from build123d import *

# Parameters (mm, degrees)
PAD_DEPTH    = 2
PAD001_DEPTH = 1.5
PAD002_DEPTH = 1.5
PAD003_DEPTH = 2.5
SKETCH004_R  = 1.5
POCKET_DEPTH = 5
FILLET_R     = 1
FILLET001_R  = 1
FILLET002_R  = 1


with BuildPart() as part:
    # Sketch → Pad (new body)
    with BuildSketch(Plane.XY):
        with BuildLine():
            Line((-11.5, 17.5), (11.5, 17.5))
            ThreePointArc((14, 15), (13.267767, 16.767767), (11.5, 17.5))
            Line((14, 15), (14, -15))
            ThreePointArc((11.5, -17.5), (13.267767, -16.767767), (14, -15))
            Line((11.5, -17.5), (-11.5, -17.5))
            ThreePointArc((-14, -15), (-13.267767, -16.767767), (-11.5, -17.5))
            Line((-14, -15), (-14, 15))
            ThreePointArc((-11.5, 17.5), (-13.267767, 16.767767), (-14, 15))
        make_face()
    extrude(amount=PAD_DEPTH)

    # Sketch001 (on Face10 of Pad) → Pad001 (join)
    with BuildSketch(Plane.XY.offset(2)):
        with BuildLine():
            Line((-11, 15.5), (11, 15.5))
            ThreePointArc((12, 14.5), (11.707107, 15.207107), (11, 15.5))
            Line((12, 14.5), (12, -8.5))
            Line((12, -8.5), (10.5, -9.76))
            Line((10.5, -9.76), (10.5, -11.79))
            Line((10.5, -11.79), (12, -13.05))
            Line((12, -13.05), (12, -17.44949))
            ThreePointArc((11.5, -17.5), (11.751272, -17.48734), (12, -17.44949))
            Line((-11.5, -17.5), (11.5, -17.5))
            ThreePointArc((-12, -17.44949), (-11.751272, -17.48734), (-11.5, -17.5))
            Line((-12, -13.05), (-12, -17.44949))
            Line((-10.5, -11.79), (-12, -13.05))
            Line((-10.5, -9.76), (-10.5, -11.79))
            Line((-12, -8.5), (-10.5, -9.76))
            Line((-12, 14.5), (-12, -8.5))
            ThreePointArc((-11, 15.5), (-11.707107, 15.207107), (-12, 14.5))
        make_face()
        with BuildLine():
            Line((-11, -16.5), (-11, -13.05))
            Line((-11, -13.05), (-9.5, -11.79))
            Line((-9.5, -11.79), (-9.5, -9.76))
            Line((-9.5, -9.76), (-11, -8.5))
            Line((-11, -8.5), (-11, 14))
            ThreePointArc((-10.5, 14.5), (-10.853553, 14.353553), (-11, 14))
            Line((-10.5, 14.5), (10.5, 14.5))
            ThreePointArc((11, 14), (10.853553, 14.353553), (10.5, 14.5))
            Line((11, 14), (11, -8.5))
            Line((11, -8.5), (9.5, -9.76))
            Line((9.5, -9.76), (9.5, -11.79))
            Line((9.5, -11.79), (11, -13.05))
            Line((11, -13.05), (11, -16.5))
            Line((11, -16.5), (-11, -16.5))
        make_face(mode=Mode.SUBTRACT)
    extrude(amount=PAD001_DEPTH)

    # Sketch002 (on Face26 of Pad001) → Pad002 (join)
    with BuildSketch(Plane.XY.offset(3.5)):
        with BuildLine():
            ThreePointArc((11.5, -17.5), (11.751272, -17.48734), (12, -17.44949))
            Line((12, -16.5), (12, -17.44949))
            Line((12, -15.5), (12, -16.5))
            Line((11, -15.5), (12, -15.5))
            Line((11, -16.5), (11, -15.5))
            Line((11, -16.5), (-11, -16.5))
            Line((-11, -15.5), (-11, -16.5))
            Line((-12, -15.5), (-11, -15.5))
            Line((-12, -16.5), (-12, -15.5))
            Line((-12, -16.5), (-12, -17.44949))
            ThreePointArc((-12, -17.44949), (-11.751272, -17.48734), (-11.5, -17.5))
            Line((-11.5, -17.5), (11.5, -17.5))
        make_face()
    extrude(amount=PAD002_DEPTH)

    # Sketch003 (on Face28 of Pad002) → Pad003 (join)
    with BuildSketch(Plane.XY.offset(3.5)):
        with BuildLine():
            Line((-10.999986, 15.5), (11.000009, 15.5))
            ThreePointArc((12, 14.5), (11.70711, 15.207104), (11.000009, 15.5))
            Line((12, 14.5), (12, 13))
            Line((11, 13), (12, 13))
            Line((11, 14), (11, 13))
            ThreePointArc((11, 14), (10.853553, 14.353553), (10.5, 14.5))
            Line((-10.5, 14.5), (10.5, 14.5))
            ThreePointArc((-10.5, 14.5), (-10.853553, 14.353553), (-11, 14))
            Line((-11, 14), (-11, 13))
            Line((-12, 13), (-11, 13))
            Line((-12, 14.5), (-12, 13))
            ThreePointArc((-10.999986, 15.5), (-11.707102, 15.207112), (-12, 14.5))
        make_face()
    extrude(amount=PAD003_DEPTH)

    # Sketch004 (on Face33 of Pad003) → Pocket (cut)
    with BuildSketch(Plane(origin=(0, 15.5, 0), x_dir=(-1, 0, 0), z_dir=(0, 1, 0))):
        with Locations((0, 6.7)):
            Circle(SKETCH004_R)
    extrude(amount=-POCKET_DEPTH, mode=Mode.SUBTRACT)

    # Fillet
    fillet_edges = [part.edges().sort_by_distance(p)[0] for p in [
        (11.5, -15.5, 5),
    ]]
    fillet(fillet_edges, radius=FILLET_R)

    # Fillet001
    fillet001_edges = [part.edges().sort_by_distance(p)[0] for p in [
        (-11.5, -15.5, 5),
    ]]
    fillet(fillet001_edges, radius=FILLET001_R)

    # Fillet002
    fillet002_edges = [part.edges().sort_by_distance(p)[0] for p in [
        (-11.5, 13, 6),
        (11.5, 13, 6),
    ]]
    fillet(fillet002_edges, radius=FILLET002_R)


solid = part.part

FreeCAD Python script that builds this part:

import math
import FreeCAD as App
import Part
import Sketcher

V = App.Vector
Q = App.Units.Quantity


def edges_at(feature, points):
    """Names of the edges that pass closest to the given points."""
    edges = feature.Shape.Edges
    near = lambda p: min(range(len(edges)), key=lambda i: edges[i].distToShape(Part.Vertex(*p))[0])
    return sorted({f"Edge{near(p) + 1}" for p in points})

doc = App.newDocument("Part")
body = doc.addObject("PartDesign::Body", "Body")

sketch1 = body.newObject("Sketcher::SketchObject", "Sketch")
sketch1.AttachmentSupport = (doc.getObject("XY_Plane"), [""])
sketch1.MapMode = "FlatFace"
sketch1.addGeometry([
    Part.LineSegment(V(11.5, 17.5, 0), V(-11.5, 17.5, 0)),
    Part.ArcOfCircle(Part.Circle(V(-11.5, 15, 0), V(0, 0, 1), 2.5), math.radians(90), math.radians(180)),
    Part.LineSegment(V(-14, 15, 0), V(-14, -15, 0)),
    Part.ArcOfCircle(Part.Circle(V(-11.5, -15, 0), V(0, 0, 1), 2.5), math.radians(180), math.radians(270)),
    Part.LineSegment(V(-11.5, -17.5, 0), V(11.5, -17.5, 0)),
    Part.ArcOfCircle(Part.Circle(V(11.5, -15, 0), V(0, 0, 1), 2.5), math.radians(-90), math.radians(0)),
    Part.LineSegment(V(14, -15, 0), V(14, 15, 0)),
    Part.ArcOfCircle(Part.Circle(V(11.5, 15, 0), V(0, 0, 1), 2.5), math.radians(0), math.radians(90)),
], False)
sketch1.addConstraint([
    Sketcher.Constraint("Tangent", 0, 2, 1, 1),
    Sketcher.Constraint("Tangent", 1, 2, 2, 1),
    Sketcher.Constraint("Tangent", 2, 2, 3, 1),
    Sketcher.Constraint("Tangent", 3, 2, 4, 1),
    Sketcher.Constraint("Tangent", 4, 2, 5, 1),
    Sketcher.Constraint("Tangent", 5, 2, 6, 1),
    Sketcher.Constraint("Tangent", 6, 2, 7, 1),
    Sketcher.Constraint("Tangent", 7, 2, 0, 1),
    Sketcher.Constraint("Horizontal", 0),
    Sketcher.Constraint("Vertical", 2),
    Sketcher.Constraint("Horizontal", 4),
    Sketcher.Constraint("Vertical", 6),
    Sketcher.Constraint("Equal", 1, 3),
    Sketcher.Constraint("Equal", 3, 5),
    Sketcher.Constraint("Equal", 5, 7),
    Sketcher.Constraint("Symmetric", 1, 3, 5, 3, -1, 1),
    Sketcher.Constraint("Radius", 1, Q("2.5 mm")),
    Sketcher.Constraint("DistanceX", 0, 2, 0, 1, Q("23 mm")),
    Sketcher.Constraint("DistanceY", 2, 2, 2, 1, Q("30 mm")),
])
pad1 = body.newObject("PartDesign::Pad", "Pad")
pad1.Profile = sketch1
pad1.Length = 2

sketch2 = body.newObject("Sketcher::SketchObject", "Sketch001")
sketch2.AttachmentSupport = (doc.getObject("XY_Plane"), [""])
sketch2.MapMode = "FlatFace"
sketch2.AttachmentOffset = App.Placement(V(0, 0, 2), App.Rotation())
sketch2.addGeometry([
    Part.LineSegment(V(11, 15.5, 0), V(-11, 15.5, 0)),
    Part.ArcOfCircle(Part.Circle(V(-11, 14.5, 0), V(0, 0, 1), 1), math.radians(90), math.radians(180)),
    Part.LineSegment(V(-12, 14.5, 0), V(-12, -8.5, 0)),
    Part.LineSegment(V(-12, -8.5, 0), V(-10.5, -9.8, 0)),
    Part.LineSegment(V(-10.5, -9.8, 0), V(-10.5, -11.8, 0)),
    Part.LineSegment(V(-10.5, -11.8, 0), V(-12, -13.1, 0)),
    Part.LineSegment(V(-12, -13.1, 0), V(-12, -17.4, 0)),
    Part.ArcOfCircle(Part.Circle(V(-11.5, -15, 0), V(0, 0, 1), 2.5), math.radians(-101.54), math.radians(-90)),
    Part.LineSegment(V(-11.5, -17.5, 0), V(11.5, -17.5, 0)),
    Part.ArcOfCircle(Part.Circle(V(11.5, -15, 0), V(0, 0, 1), 2.5), math.radians(-90), math.radians(-78.46)),
    Part.LineSegment(V(12, -17.4, 0), V(12, -13.1, 0)),
    Part.LineSegment(V(12, -13.1, 0), V(10.5, -11.8, 0)),
    Part.LineSegment(V(10.5, -11.8, 0), V(10.5, -9.8, 0)),
    Part.LineSegment(V(10.5, -9.8, 0), V(12, -8.5, 0)),
    Part.LineSegment(V(12, -8.5, 0), V(12, 14.5, 0)),
    Part.ArcOfCircle(Part.Circle(V(11, 14.5, 0), V(0, 0, 1), 1), math.radians(0), math.radians(90)),
    Part.LineSegment(V(-11, -16.5, 0), V(-11, -13.1, 0)),
    Part.LineSegment(V(-11, -13.1, 0), V(-9.5, -11.8, 0)),
    Part.LineSegment(V(-9.5, -11.8, 0), V(-9.5, -9.8, 0)),
    Part.LineSegment(V(-9.5, -9.8, 0), V(-11, -8.5, 0)),
    Part.LineSegment(V(-11, -8.5, 0), V(-11, 14, 0)),
    Part.ArcOfCircle(Part.Circle(V(-10.5, 14, 0), V(0, 0, 1), 0.5), math.radians(90), math.radians(180)),
    Part.LineSegment(V(-10.5, 14.5, 0), V(10.5, 14.5, 0)),
    Part.ArcOfCircle(Part.Circle(V(10.5, 14, 0), V(0, 0, 1), 0.5), math.radians(0), math.radians(90)),
    Part.LineSegment(V(11, 14, 0), V(11, -8.5, 0)),
    Part.LineSegment(V(11, -8.5, 0), V(9.5, -9.8, 0)),
    Part.LineSegment(V(9.5, -9.8, 0), V(9.5, -11.8, 0)),
    Part.LineSegment(V(9.5, -11.8, 0), V(11, -13.1, 0)),
    Part.LineSegment(V(11, -13.1, 0), V(11, -16.5, 0)),
    Part.LineSegment(V(11, -16.5, 0), V(-11, -16.5, 0)),
], False)
sketch2.addConstraint([
    Sketcher.Constraint("Tangent", 0, 2, 1, 1),
    Sketcher.Constraint("Tangent", 1, 2, 2, 1),
    Sketcher.Constraint("Coincident", 2, 2, 3, 1),
    Sketcher.Constraint("Coincident", 3, 2, 4, 1),
    Sketcher.Constraint("Coincident", 4, 2, 5, 1),
    Sketcher.Constraint("Coincident", 5, 2, 6, 1),
    Sketcher.Constraint("Coincident", 6, 2, 7, 1),
    Sketcher.Constraint("Coincident", 7, 2, 8, 1),
    Sketcher.Constraint("Coincident", 8, 2, 9, 1),
    Sketcher.Constraint("Coincident", 9, 2, 10, 1),
    Sketcher.Constraint("Coincident", 10, 2, 11, 1),
    Sketcher.Constraint("Coincident", 11, 2, 12, 1),
    Sketcher.Constraint("Coincident", 12, 2, 13, 1),
    Sketcher.Constraint("Coincident", 13, 2, 14, 1),
    Sketcher.Constraint("Tangent", 14, 2, 15, 1),
    Sketcher.Constraint("Tangent", 15, 2, 0, 1),
    Sketcher.Constraint("Coincident", 16, 2, 17, 1),
    Sketcher.Constraint("Coincident", 17, 2, 18, 1),
    Sketcher.Constraint("Coincident", 18, 2, 19, 1),
    Sketcher.Constraint("Coincident", 19, 2, 20, 1),
    Sketcher.Constraint("Coincident", 20, 2, 21, 2),
    Sketcher.Constraint("Coincident", 21, 1, 22, 1),
    Sketcher.Constraint("Coincident", 22, 2, 23, 2),
    Sketcher.Constraint("Coincident", 23, 1, 24, 1),
    Sketcher.Constraint("Coincident", 24, 2, 25, 1),
    Sketcher.Constraint("Coincident", 25, 2, 26, 1),
    Sketcher.Constraint("Coincident", 26, 2, 27, 1),
    Sketcher.Constraint("Coincident", 27, 2, 28, 1),
    Sketcher.Constraint("Coincident", 28, 2, 29, 1),
    Sketcher.Constraint("Coincident", 29, 2, 16, 1),
    Sketcher.Constraint("Horizontal", 0),
    Sketcher.Constraint("Vertical", 2),
    Sketcher.Constraint("Vertical", 4),
    Sketcher.Constraint("Vertical", 6),
    Sketcher.Constraint("Horizontal", 8),
    Sketcher.Constraint("Vertical", 10),
    Sketcher.Constraint("Vertical", 12),
    Sketcher.Constraint("Vertical", 14),
    Sketcher.Constraint("Vertical", 16),
    Sketcher.Constraint("Vertical", 18),
    Sketcher.Constraint("Vertical", 20),
    Sketcher.Constraint("Horizontal", 22),
    Sketcher.Constraint("Vertical", 24),
    Sketcher.Constraint("Vertical", 26),
    Sketcher.Constraint("Vertical", 28),
    Sketcher.Constraint("Horizontal", 29),
    Sketcher.Constraint("Equal", 7, 9),
    Sketcher.Constraint("Equal", 1, 15),
    Sketcher.Constraint("Equal", 21, 23),
    Sketcher.Constraint("Symmetric", 6, 2, 9, 2, -2),
    Sketcher.Constraint("Symmetric", 4, 2, 11, 2, -2),
    Sketcher.Constraint("Symmetric", 2, 2, 13, 2, -2),
    Sketcher.Constraint("Symmetric", 20, 2, 23, 1, -2),
    Sketcher.Constraint("Symmetric", 18, 2, 25, 2, -2),
    Sketcher.Constraint("Symmetric", 16, 2, 27, 2, -2),
    Sketcher.Constraint("Parallel", 3, 11),
    Sketcher.Constraint("Parallel", 5, 13),
    Sketcher.Constraint("Parallel", 13, 17),
    Sketcher.Constraint("Parallel", 11, 19),
    Sketcher.Constraint("Parallel", 17, 25),
    Sketcher.Constraint("Parallel", 19, 27),
    Sketcher.Constraint("Horizontal", 5, 2, 10, 2),
    Sketcher.Constraint("Horizontal", 10, 2, 16, 2),
    Sketcher.Constraint("Horizontal", 11, 2, 17, 2),
    Sketcher.Constraint("Horizontal", 12, 2, 18, 2),
    Sketcher.Constraint("Horizontal", 13, 2, 19, 2),
    Sketcher.Constraint("Horizontal", 23, 3, 20, 2),
    Sketcher.Constraint("Horizontal", 14, 2, 21, 1),
    Sketcher.Constraint("Vertical", 21, 3, 3, 2),
    Sketcher.Constraint("Vertical", 2, 2, 5, 2),
    Sketcher.Constraint("Vertical", 0, 2, 16, 2),
    Sketcher.Constraint("Vertical", 4, 2, 21, 1),
    Sketcher.Constraint("Vertical", 12, 2, 22, 2),
    Sketcher.Constraint("Equal", 8, 2),
    Sketcher.Constraint("Radius", 1, Q("0.999999 mm")),
    Sketcher.Constraint("Radius", 21, Q("0.500001 mm")),
    Sketcher.Constraint("DistanceX", 0, 2, 0, 1, Q("22 mm")),
    Sketcher.Constraint("DistanceX", 8, 1, 8, 2, Q("23 mm")),
    Sketcher.Constraint("DistanceY", -1, 1, 21, 3, Q("13.999999 mm")),
    Sketcher.Constraint("DistanceX", 7, 2, 4, 2, Q("1 mm")),
    Sketcher.Constraint("DistanceY", 8, 2, 28, 2, Q("1 mm")),
    Sketcher.Constraint("DistanceY", 4, 2, 4, 1, Q("2.03 mm")),
    Sketcher.Constraint("DistanceY", 16, 1, 16, 2, Q("3.45 mm")),
    Sketcher.Constraint("DistanceY", 7, 2, -1, 1, Q("17.5 mm")),
    Sketcher.Constraint("Radius", 7, Q("2.500108 mm")),
    Sketcher.Constraint("DistanceY", 6, 2, 6, 1, Q("4.39949 mm")),
])
pad2 = body.newObject("PartDesign::Pad", "Pad001")
pad2.Profile = sketch2
pad2.Length = 1.5

sketch3 = body.newObject("Sketcher::SketchObject", "Sketch002")
sketch3.AttachmentSupport = (doc.getObject("XY_Plane"), [""])
sketch3.MapMode = "FlatFace"
sketch3.AttachmentOffset = App.Placement(V(0, 0, 3.5), App.Rotation())
sketch3.addGeometry([
    Part.ArcOfCircle(Part.Circle(V(11.5, -15, 0), V(0, 0, 1), 2.5), math.radians(-90), math.radians(-78.46)),
    Part.LineSegment(V(12, -17.4, 0), V(12, -15.5, 0)),
    Part.LineSegment(V(12, -15.5, 0), V(11, -15.5, 0)),
    Part.LineSegment(V(11, -15.5, 0), V(11, -16.5, 0)),
    Part.LineSegment(V(11, -16.5, 0), V(-11, -16.5, 0)),
    Part.LineSegment(V(-11, -16.5, 0), V(-11, -15.5, 0)),
    Part.LineSegment(V(-11, -15.5, 0), V(-12, -15.5, 0)),
    Part.LineSegment(V(-12, -15.5, 0), V(-12, -17.4, 0)),
    Part.ArcOfCircle(Part.Circle(V(-11.5, -15, 0), V(0, 0, 1), 2.5), math.radians(-101.54), math.radians(-90)),
    Part.LineSegment(V(-11.5, -17.5, 0), V(11.5, -17.5, 0)),
], False)
sketch3.addConstraint([
    Sketcher.Constraint("Coincident", 0, 2, 1, 1),
    Sketcher.Constraint("Coincident", 1, 2, 2, 1),
    Sketcher.Constraint("Coincident", 2, 2, 3, 1),
    Sketcher.Constraint("Coincident", 3, 2, 4, 1),
    Sketcher.Constraint("Coincident", 4, 2, 5, 1),
    Sketcher.Constraint("Coincident", 5, 2, 6, 1),
    Sketcher.Constraint("Coincident", 6, 2, 7, 1),
    Sketcher.Constraint("Coincident", 7, 2, 8, 1),
    Sketcher.Constraint("Coincident", 8, 2, 9, 1),
    Sketcher.Constraint("Coincident", 9, 2, 0, 1),
    Sketcher.Constraint("Vertical", 1),
    Sketcher.Constraint("Horizontal", 2),
    Sketcher.Constraint("Vertical", 3),
    Sketcher.Constraint("Horizontal", 4),
    Sketcher.Constraint("Vertical", 5),
    Sketcher.Constraint("Horizontal", 6),
    Sketcher.Constraint("Vertical", 7),
    Sketcher.Constraint("Horizontal", 9),
    Sketcher.Constraint("Equal", 0, 8),
    Sketcher.Constraint("Symmetric", 2, 2, 5, 2, -2),
    Sketcher.Constraint("Symmetric", 0, 2, 7, 2, -2),
    Sketcher.Constraint("Equal", 6, 3),
    Sketcher.Constraint("DistanceX", 2, 2, 2, 1, Q("1 mm")),
    Sketcher.Constraint("DistanceX", 4, 2, 4, 1, Q("22 mm")),
    Sketcher.Constraint("DistanceX", 9, 1, 9, 2, Q("23 mm")),
    Sketcher.Constraint("DistanceY", 8, 2, 4, 2, Q("1 mm")),
    Sketcher.Constraint("DistanceY", 1, 2, -1, 1, Q("15.5 mm")),
    Sketcher.Constraint("DistanceX", 8, 2, -1, 1, Q("11.5 mm")),
    Sketcher.Constraint("Radius", 0, Q("2.500108 mm")),
    Sketcher.Constraint("DistanceY", 1, 1, 1, 2, Q("1.94949 mm")),
])
pad3 = body.newObject("PartDesign::Pad", "Pad002")
pad3.Profile = sketch3
pad3.Length = 1.5

sketch4 = body.newObject("Sketcher::SketchObject", "Sketch003")
sketch4.AttachmentSupport = (doc.getObject("XY_Plane"), [""])
sketch4.MapMode = "FlatFace"
sketch4.AttachmentOffset = App.Placement(V(0, 0, 3.5), App.Rotation())
sketch4.addGeometry([
    Part.LineSegment(V(11, 15.5, 0), V(-11, 15.5, 0)),
    Part.ArcOfCircle(Part.Circle(V(-11, 14.5, 0), V(0, 0, 1), 1), math.radians(90), math.radians(180)),
    Part.LineSegment(V(-12, 14.5, 0), V(-12, 13, 0)),
    Part.LineSegment(V(-12, 13, 0), V(-11, 13, 0)),
    Part.LineSegment(V(-11, 13, 0), V(-11, 14, 0)),
    Part.ArcOfCircle(Part.Circle(V(-10.5, 14, 0), V(0, 0, 1), 0.5), math.radians(90), math.radians(180)),
    Part.LineSegment(V(-10.5, 14.5, 0), V(10.5, 14.5, 0)),
    Part.ArcOfCircle(Part.Circle(V(10.5, 14, 0), V(0, 0, 1), 0.5), math.radians(0), math.radians(90)),
    Part.LineSegment(V(11, 14, 0), V(11, 13, 0)),
    Part.LineSegment(V(11, 13, 0), V(12, 13, 0)),
    Part.LineSegment(V(12, 13, 0), V(12, 14.5, 0)),
    Part.ArcOfCircle(Part.Circle(V(11, 14.5, 0), V(0, 0, 1), 1), math.radians(0), math.radians(90)),
], False)
sketch4.addConstraint([
    Sketcher.Constraint("Coincident", 0, 2, 1, 1),
    Sketcher.Constraint("Tangent", 1, 2, 2, 1),
    Sketcher.Constraint("Coincident", 2, 2, 3, 1),
    Sketcher.Constraint("Coincident", 3, 2, 4, 1),
    Sketcher.Constraint("Coincident", 4, 2, 5, 2),
    Sketcher.Constraint("Coincident", 5, 1, 6, 1),
    Sketcher.Constraint("Coincident", 6, 2, 7, 2),
    Sketcher.Constraint("Coincident", 7, 1, 8, 1),
    Sketcher.Constraint("Coincident", 8, 2, 9, 1),
    Sketcher.Constraint("Coincident", 9, 2, 10, 1),
    Sketcher.Constraint("Tangent", 10, 2, 11, 1),
    Sketcher.Constraint("Coincident", 11, 2, 0, 1),
    Sketcher.Constraint("Horizontal", 0),
    Sketcher.Constraint("Vertical", 2),
    Sketcher.Constraint("Horizontal", 3),
    Sketcher.Constraint("Vertical", 4),
    Sketcher.Constraint("Horizontal", 6),
    Sketcher.Constraint("Vertical", 8),
    Sketcher.Constraint("Horizontal", 9),
    Sketcher.Constraint("Vertical", 10),
    Sketcher.Constraint("Equal", 5, 7),
    Sketcher.Constraint("Equal", 1, 11),
    Sketcher.Constraint("Symmetric", 4, 2, 7, 1, -2),
    Sketcher.Constraint("Symmetric", 2, 2, 9, 2, -2),
    Sketcher.Constraint("Horizontal", 7, 3, 4, 2),
    Sketcher.Constraint("Horizontal", 1, 2, 5, 1),
    Sketcher.Constraint("Vertical", 1, 3, 3, 2),
    Sketcher.Constraint("Vertical", 7, 3, 6, 2),
    Sketcher.Constraint("Equal", 9, 4),
    Sketcher.Constraint("Radius", 1, Q("0.999999 mm")),
    Sketcher.Constraint("Radius", 5, Q("0.500001 mm")),
    Sketcher.Constraint("DistanceX", 6, 1, 6, 2, Q("21 mm")),
    Sketcher.Constraint("DistanceX", 1, 3, -1, 1, Q("11.000001 mm")),
    Sketcher.Constraint("DistanceY", -1, 1, 5, 3, Q("13.999999 mm")),
    Sketcher.Constraint("DistanceX", 0, 2, 0, 1, Q("21.999995 mm")),
    Sketcher.Constraint("DistanceX", -1, 1, 11, 2, Q("11.000009 mm")),
])
pad4 = body.newObject("PartDesign::Pad", "Pad003")
pad4.Profile = sketch4
pad4.Length = 2.5

sketch5 = body.newObject("Sketcher::SketchObject", "Sketch004")
sketch5.AttachmentSupport = (doc.getObject("XZ_Plane"), [""])
sketch5.MapMode = "FlatFace"
sketch5.AttachmentOffset = App.Placement(V(0, 0, -15.5), App.Rotation())
sketch5.addGeometry(Part.Circle(V(0, 6.7, 0), V(0, 0, 1), 1.5), False)
sketch5.addConstraint([
    Sketcher.Constraint("PointOnObject", 0, 3, -2),
    Sketcher.Constraint("Diameter", 0, Q("3 mm")),
    Sketcher.Constraint("DistanceY", -1, 1, 0, 3, Q("6.7 mm")),
])
pocket1 = body.newObject("PartDesign::Pocket", "Pocket")
pocket1.Profile = sketch5
pocket1.Length = 5
pocket1.Reversed = True
doc.recompute()

fillet = body.newObject("PartDesign::Fillet", "Fillet")
fillet.Base = (pocket1, edges_at(pocket1, [(11.5, -15.5, 5)]))
fillet.Radius = 1
doc.recompute()

fillet2 = body.newObject("PartDesign::Fillet", "Fillet001")
fillet2.Base = (fillet, edges_at(fillet, [(-11.5, -15.5, 5)]))
fillet2.Radius = 1
doc.recompute()

fillet3 = body.newObject("PartDesign::Fillet", "Fillet002")
fillet3.Base = (fillet2, edges_at(fillet2, [(-11.5, 13, 6), (11.5, 13, 6)]))
fillet3.Radius = 1

doc.recompute()
